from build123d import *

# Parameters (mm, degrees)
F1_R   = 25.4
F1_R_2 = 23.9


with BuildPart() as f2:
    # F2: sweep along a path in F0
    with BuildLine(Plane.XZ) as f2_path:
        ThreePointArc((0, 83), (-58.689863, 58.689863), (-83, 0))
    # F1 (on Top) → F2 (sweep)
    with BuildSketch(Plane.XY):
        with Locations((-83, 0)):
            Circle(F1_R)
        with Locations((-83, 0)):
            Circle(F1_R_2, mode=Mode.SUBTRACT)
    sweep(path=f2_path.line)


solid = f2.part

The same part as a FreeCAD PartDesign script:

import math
import FreeCAD as App
import Part
import Sketcher
Q = App.Units.Quantity

doc = App.newDocument("Part")
params = doc.addObject("Spreadsheet::Sheet", "Params")
for row, (alias, value) in enumerate([
    ("sketch1_diameter", "50.8 mm"),
    ("sketch1_diameter2", "47.8 mm"),
    ("sketch2_radius", "82.999999 mm"),
], start=1):
    params.set(f"A{row}", alias)
    params.set(f"B{row}", "=" + value)
    params.setAlias(f"B{row}", alias)

body = doc.addObject("PartDesign::Body", "Body")

# Sketch on XY plane
sketch1 = body.newObject("Sketcher::SketchObject", "Sketch")
sketch1.AttachmentSupport = (doc.getObject("XY_Plane"), [""])
sketch1.MapMode = "FlatFace"
sketch1.addGeometry(Part.Circle(App.Vector(-83, 0, 0), App.Vector(0, 0, 1), 25), False)
sketch1.addGeometry(Part.Circle(App.Vector(-83, 0, 0), App.Vector(0, 0, 1), 24), False)
sketch1.addConstraint(Sketcher.Constraint("Coincident", 1, 3, 0, 3))
sketch1.addConstraint(Sketcher.Constraint("PointOnObject", 0, 3, -1))
sketch1.addConstraint(Sketcher.Constraint("Diameter", 0, Q("50.8 mm")))
sketch1.addConstraint(Sketcher.Constraint("Diameter", 1, Q("47.8 mm")))
sketch1.addConstraint(Sketcher.Constraint("DistanceX", 0, 3, -1, 1, Q("83 mm")))
sketch1.setExpression("Constraints[2]", "Params.sketch1_diameter")
sketch1.setExpression("Constraints[3]", "Params.sketch1_diameter2")

# Sketch on XZ plane
sketch2 = body.newObject("Sketcher::SketchObject", "Sketch001")
sketch2.AttachmentSupport = (doc.getObject("XZ_Plane"), [""])
sketch2.MapMode = "FlatFace"
sketch2.addGeometry(Part.ArcOfCircle(Part.Circle(App.Vector(0, 0, 0), App.Vector(0, 0, 1), 83), math.radians(90), math.radians(180)), False)
sketch2.addConstraint(Sketcher.Constraint("Coincident", 0, 3, -1, 1))
sketch2.addConstraint(Sketcher.Constraint("PointOnObject", 0, 1, -2))
sketch2.addConstraint(Sketcher.Constraint("PointOnObject", 0, 2, -1))
sketch2.addConstraint(Sketcher.Constraint("Radius", 0, Q("82.999999 mm")))
sketch2.setExpression("Constraints[3]", "Params.sketch2_radius")
doc.recompute()

additivepipe = body.newObject("PartDesign::AdditivePipe", "AdditivePipe")
additivepipe.Profile = sketch1
additivepipe.Spine = (sketch2, ["Edge1"])

doc.recompute()
